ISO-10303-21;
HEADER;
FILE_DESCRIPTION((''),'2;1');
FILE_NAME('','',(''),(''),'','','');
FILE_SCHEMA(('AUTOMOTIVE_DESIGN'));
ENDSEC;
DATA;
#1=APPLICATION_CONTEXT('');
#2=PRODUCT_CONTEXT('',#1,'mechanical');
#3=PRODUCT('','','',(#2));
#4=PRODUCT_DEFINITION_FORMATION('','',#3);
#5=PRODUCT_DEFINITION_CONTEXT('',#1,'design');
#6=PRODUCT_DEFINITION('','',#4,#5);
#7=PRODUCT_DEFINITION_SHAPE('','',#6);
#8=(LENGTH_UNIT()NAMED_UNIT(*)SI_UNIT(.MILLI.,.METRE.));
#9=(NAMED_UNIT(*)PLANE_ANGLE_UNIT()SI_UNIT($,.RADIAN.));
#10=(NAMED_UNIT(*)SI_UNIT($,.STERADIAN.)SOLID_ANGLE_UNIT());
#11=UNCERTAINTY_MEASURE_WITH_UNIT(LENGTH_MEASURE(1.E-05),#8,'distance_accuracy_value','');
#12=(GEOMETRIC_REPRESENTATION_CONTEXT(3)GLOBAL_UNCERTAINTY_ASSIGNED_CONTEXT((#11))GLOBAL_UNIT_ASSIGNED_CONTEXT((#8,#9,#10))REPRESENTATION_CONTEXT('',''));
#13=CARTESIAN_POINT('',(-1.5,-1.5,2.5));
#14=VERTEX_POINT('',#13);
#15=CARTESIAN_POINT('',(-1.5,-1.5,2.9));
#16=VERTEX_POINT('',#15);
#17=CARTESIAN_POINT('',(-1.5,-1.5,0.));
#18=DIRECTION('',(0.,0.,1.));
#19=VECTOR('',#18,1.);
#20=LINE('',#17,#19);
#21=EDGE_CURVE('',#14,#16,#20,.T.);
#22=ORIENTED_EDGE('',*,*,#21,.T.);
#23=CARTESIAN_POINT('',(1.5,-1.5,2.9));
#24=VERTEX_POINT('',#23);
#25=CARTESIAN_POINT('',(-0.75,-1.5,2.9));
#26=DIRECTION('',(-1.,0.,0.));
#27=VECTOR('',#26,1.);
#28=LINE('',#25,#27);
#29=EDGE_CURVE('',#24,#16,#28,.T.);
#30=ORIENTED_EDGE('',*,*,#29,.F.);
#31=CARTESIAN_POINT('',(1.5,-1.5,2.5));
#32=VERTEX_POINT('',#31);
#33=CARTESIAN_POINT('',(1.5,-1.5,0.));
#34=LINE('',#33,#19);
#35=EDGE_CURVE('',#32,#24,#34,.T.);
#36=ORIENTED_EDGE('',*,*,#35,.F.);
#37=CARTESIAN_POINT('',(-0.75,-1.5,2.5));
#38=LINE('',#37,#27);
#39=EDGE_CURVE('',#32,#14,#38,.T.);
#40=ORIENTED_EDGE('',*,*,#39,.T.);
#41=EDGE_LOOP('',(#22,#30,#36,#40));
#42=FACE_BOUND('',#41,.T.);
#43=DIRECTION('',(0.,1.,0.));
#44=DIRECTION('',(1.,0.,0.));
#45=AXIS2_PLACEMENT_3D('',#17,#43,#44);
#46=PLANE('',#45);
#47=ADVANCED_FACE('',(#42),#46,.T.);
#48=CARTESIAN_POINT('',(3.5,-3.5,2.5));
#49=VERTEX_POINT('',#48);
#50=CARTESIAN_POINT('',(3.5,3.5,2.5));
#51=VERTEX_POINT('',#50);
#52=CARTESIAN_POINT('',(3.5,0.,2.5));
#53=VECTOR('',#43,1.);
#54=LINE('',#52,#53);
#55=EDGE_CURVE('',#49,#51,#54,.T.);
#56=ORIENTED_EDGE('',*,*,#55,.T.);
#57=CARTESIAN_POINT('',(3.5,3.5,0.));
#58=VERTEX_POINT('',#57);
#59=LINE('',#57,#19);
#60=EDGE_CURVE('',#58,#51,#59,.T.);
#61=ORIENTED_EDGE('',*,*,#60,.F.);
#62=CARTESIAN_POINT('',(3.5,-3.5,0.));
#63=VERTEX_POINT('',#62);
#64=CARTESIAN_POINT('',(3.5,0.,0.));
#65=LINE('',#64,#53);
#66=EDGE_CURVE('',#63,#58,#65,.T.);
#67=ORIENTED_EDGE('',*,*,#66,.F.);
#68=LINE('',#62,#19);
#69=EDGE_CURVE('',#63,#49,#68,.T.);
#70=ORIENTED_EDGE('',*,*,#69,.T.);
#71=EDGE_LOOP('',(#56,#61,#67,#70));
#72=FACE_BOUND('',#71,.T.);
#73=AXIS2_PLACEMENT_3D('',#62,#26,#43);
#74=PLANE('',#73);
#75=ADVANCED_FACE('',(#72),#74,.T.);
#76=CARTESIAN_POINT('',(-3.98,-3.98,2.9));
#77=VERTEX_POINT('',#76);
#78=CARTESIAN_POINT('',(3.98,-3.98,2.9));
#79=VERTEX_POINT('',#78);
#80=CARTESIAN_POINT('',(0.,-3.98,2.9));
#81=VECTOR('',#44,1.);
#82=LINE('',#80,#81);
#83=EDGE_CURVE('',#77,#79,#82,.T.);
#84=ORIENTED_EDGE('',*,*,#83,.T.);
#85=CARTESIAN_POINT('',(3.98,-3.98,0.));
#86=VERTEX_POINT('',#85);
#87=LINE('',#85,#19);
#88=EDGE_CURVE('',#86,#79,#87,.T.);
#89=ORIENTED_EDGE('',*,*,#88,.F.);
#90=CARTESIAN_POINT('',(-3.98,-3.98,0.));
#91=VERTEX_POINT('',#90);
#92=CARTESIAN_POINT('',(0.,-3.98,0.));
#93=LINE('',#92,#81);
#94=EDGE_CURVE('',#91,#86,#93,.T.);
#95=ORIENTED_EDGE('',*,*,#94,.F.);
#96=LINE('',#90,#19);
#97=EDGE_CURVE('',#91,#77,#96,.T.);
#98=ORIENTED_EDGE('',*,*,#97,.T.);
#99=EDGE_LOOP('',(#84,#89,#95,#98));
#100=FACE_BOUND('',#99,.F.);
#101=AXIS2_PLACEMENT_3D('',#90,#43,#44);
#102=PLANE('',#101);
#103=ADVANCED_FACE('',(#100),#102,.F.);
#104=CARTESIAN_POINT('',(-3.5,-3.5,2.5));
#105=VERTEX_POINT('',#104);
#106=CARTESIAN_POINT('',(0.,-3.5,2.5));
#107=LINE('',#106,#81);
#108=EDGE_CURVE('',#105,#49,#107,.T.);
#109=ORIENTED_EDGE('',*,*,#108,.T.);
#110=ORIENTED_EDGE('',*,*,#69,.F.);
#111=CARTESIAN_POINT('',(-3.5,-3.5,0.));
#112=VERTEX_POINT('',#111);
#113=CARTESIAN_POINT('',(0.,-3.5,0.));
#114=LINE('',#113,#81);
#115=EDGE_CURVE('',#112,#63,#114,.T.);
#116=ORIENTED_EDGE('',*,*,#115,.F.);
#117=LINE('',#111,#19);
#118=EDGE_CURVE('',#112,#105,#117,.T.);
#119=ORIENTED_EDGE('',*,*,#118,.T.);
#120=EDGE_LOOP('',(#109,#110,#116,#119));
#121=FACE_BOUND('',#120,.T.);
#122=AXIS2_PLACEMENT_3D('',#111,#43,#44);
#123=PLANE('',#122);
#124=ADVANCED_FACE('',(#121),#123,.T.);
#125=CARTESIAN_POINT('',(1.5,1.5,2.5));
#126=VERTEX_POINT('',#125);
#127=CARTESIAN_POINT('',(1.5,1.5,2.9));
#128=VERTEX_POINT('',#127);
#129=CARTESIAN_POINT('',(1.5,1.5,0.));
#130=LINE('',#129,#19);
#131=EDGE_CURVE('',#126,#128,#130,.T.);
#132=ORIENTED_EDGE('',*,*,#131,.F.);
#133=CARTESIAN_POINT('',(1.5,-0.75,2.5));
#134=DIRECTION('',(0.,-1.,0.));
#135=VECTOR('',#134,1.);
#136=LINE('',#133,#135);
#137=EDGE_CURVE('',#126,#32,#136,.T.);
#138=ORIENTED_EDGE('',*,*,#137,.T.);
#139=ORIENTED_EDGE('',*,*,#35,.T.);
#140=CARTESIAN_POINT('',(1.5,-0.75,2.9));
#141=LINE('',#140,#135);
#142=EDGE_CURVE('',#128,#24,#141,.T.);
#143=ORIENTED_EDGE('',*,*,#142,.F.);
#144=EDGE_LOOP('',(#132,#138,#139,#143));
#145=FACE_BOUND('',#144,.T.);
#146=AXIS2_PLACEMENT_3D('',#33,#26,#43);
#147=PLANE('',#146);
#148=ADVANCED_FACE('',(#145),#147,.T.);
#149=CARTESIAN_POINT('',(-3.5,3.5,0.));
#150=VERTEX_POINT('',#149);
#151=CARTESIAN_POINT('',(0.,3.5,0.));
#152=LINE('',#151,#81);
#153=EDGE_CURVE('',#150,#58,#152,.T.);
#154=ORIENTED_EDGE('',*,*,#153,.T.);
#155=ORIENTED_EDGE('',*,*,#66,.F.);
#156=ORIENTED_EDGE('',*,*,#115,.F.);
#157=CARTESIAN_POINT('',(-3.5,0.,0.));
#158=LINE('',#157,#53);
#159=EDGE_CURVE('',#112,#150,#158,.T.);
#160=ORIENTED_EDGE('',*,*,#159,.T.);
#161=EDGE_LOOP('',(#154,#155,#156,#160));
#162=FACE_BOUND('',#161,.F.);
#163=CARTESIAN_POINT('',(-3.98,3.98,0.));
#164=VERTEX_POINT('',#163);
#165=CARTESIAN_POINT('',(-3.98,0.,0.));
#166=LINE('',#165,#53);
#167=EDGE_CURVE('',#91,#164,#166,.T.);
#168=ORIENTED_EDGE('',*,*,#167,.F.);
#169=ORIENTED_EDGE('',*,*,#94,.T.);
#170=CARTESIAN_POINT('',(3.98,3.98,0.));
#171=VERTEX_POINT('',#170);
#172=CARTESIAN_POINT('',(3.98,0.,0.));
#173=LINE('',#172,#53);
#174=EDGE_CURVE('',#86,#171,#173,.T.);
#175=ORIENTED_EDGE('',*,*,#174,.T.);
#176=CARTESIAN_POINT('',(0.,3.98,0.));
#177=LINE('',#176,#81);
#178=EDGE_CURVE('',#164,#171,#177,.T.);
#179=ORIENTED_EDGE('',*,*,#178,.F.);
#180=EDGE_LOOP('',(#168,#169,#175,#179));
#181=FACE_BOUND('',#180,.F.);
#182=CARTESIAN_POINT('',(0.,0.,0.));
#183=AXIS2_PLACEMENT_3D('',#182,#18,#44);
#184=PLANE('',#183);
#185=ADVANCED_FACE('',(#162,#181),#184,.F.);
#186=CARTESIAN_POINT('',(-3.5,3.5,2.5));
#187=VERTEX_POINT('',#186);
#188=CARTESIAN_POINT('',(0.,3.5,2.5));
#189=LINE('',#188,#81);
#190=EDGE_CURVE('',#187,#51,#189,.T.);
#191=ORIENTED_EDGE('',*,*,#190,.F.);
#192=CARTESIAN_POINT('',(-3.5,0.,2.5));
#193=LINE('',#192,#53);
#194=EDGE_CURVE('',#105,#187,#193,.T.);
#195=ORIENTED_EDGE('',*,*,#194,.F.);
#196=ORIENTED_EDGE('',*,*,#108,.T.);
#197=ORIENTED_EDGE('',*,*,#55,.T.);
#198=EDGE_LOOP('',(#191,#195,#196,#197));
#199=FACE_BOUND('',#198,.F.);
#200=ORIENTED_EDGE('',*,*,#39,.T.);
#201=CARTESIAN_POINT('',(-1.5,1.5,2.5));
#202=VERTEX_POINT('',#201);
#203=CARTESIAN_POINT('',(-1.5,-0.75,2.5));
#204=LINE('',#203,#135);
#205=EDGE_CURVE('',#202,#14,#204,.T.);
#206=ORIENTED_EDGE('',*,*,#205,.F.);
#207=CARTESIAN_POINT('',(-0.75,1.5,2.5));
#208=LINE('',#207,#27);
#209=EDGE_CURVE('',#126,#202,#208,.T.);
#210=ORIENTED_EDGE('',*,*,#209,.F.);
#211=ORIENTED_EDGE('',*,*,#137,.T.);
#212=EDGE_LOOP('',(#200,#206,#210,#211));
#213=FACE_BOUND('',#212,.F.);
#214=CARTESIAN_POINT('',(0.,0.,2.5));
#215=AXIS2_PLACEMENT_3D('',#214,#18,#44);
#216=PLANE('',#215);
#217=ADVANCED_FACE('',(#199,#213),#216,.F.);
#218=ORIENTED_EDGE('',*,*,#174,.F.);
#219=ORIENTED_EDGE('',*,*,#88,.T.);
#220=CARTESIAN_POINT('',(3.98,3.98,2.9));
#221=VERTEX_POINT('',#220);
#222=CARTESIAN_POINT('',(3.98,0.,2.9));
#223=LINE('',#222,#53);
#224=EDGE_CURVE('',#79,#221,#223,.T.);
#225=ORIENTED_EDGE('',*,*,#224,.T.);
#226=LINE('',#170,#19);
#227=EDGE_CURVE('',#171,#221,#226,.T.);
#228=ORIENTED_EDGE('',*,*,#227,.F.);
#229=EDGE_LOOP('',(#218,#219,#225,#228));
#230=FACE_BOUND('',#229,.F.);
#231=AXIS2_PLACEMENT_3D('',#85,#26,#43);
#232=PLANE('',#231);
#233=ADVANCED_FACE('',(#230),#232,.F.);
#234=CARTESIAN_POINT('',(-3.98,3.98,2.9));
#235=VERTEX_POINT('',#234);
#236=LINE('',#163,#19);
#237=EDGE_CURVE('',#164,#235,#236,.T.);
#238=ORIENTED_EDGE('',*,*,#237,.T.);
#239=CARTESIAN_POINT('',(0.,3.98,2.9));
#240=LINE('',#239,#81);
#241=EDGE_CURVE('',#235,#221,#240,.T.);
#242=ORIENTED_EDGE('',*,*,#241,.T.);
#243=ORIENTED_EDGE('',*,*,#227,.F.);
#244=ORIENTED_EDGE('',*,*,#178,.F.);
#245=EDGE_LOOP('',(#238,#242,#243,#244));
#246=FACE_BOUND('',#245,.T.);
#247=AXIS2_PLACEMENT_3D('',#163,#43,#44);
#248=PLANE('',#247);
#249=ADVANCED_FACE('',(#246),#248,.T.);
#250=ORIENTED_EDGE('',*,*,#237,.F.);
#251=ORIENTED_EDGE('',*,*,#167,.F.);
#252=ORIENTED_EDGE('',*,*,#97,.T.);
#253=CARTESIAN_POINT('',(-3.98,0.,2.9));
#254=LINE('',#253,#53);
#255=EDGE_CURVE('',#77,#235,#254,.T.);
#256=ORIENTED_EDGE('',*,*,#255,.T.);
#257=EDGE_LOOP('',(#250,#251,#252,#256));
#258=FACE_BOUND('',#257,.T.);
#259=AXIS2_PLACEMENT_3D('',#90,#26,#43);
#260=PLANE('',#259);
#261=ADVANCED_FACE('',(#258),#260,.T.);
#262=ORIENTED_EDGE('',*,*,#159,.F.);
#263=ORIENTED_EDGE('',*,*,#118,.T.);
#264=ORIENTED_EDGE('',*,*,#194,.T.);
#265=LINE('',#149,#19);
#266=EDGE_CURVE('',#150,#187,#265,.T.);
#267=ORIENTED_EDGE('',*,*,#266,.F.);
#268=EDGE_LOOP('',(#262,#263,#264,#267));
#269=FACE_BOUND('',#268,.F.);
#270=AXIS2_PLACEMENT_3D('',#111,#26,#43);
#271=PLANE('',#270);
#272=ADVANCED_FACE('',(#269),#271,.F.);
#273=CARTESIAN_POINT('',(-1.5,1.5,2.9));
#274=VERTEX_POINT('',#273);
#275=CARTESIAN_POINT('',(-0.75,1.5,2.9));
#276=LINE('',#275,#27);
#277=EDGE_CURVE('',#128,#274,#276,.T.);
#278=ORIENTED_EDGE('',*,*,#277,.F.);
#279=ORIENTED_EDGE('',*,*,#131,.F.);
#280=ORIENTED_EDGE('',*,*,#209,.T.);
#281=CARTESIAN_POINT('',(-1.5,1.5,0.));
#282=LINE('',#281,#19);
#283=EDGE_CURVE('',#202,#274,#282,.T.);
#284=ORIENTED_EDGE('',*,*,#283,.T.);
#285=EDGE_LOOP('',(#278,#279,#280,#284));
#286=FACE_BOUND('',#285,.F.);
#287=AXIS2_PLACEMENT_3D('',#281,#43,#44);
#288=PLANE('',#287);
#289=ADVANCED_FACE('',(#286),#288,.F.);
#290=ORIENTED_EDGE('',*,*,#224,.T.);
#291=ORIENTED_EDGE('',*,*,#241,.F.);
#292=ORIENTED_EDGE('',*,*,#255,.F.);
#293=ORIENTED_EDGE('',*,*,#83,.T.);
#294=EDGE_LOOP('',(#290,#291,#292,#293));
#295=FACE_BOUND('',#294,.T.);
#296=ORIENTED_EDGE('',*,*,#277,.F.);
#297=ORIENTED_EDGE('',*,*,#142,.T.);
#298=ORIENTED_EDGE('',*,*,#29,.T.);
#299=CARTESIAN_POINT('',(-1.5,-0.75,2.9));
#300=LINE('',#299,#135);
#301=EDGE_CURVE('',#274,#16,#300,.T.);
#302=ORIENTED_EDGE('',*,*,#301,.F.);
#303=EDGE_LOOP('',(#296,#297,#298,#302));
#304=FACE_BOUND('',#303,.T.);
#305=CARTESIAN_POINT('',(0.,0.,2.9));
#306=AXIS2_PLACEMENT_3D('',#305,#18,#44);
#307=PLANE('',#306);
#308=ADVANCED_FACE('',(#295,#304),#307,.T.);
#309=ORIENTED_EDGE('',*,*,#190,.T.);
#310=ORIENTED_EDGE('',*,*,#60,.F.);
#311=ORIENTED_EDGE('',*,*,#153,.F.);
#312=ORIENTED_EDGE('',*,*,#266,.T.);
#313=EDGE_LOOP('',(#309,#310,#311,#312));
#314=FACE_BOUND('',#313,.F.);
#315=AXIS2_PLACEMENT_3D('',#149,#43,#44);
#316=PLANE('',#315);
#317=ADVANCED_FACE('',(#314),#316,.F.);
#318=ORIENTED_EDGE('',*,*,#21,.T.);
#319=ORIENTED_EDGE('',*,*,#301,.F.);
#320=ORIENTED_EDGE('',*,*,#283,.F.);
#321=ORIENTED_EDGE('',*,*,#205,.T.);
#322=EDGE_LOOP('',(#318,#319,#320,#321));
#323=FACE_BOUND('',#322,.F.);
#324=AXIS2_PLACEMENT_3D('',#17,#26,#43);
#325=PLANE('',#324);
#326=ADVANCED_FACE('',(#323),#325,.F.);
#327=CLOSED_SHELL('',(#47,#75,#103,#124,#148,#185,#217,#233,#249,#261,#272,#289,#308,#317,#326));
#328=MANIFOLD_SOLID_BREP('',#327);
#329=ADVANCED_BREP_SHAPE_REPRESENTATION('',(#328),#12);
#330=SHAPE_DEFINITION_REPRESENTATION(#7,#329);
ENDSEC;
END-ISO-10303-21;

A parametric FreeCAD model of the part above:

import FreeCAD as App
import Part
import Sketcher
from FreeCAD import Vector


def add_polygon(sketch, points):
    """Adds a closed chain of lines whose ends are joined by coincident constraints."""
    first, n = sketch.GeometryCount, len(points)
    for a, b in zip(points, points[1:] + points[:1]):
        sketch.addGeometry(Part.LineSegment(App.Vector(*a, 0), App.Vector(*b, 0)), False)
    for i in range(n):
        sketch.addConstraint(Sketcher.Constraint("Coincident", first + i, 2, first + (i + 1) % n, 1))

doc = App.newDocument("Part")
params = doc.addObject("Spreadsheet::Sheet", "Params")
for row, (alias, value) in enumerate([
    ("sketch1_width", "3 mm"),
    ("pad1_length", "4 mm"),
    ("sketch2_width", "7 mm"),
    ("pad2_length", "2.5 mm"),
    ("sketch3_width", "7.96 mm"),
    ("pad3_length", "2.9 mm"),
], start=1):
    params.set(f"A{row}", alias)
    params.set(f"B{row}", "=" + value)
    params.setAlias(f"B{row}", alias)

body = doc.addObject("PartDesign::Body", "Body")

# Sketch on XY plane
sketch1 = body.newObject("Sketcher::SketchObject", "Sketch")
sketch1.AttachmentSupport = (doc.getObject("XY_Plane"), [""])
sketch1.MapMode = "FlatFace"
add_polygon(sketch1, [(-1.5, 1.5), (-1.5, -1.5), (1.5, -1.5), (1.5, 1.5)])  # lines 0-3
sketch1.addConstraint([
    Sketcher.Constraint("Vertical", 0),
    Sketcher.Constraint("Horizontal", 1),
    Sketcher.Constraint("Vertical", 2),
    Sketcher.Constraint("Horizontal", 3),
    Sketcher.Constraint("Symmetric", 0, 2, 2, 2, -1, 1),
    Sketcher.Constraint("Equal", 3, 0),
    Sketcher.Constraint("DistanceX", 1, 1, 1, 2, 3.0),
])
sketch1.setExpression("Constraints[10]", "Params.sketch1_width")
pad1 = body.newObject("PartDesign::Pad", "Pad")
pad1.Profile = sketch1
pad1.setExpression("Length", "Params.pad1_length")
body2 = doc.addObject("PartDesign::Body", "Body001")

# Sketch on XY plane
sketch2 = body2.newObject("Sketcher::SketchObject", "Sketch001")
sketch2.AttachmentSupport = (doc.getObject("XY_Plane001"), [""])
sketch2.MapMode = "FlatFace"
add_polygon(sketch2, [(-4, 4), (-4, -4), (4, -4), (4, 4)])  # lines 0-3
sketch2.addConstraint([
    Sketcher.Constraint("Vertical", 0),
    Sketcher.Constraint("Horizontal", 1),
    Sketcher.Constraint("Vertical", 2),
    Sketcher.Constraint("Horizontal", 3),
    Sketcher.Constraint("Symmetric", 0, 2, 2, 2, -1, 1),
    Sketcher.Constraint("Equal", 3, 0),
    Sketcher.Constraint("DistanceX", 1, 1, 1, 2, 7.0),
])
sketch2.setExpression("Constraints[10]", "Params.sketch2_width")
pad2 = body2.newObject("PartDesign::Pad", "Pad001")
pad2.Profile = sketch2
pad2.setExpression("Length", "Params.pad2_length")
doc.recompute()

boolean = body2.newObject("PartDesign::Boolean", "Boolean")
boolean.Type = "Fuse"
boolean.addObjects([body])
body3 = doc.addObject("PartDesign::Body", "Body002")

# Sketch on XY plane
sketch3 = body3.newObject("Sketcher::SketchObject", "Sketch002")
sketch3.AttachmentSupport = (doc.getObject("XY_Plane002"), [""])
sketch3.MapMode = "FlatFace"
add_polygon(sketch3, [(-4, 4), (-4, -4), (4, -4), (4, 4)])  # lines 0-3
sketch3.addConstraint([
    Sketcher.Constraint("Vertical", 0),
    Sketcher.Constraint("Horizontal", 1),
    Sketcher.Constraint("Vertical", 2),
    Sketcher.Constraint("Horizontal", 3),
    Sketcher.Constraint("Symmetric", 0, 2, 2, 2, -1, 1),
    Sketcher.Constraint("Equal", 3, 0),
    Sketcher.Constraint("DistanceX", 1, 1, 1, 2, 7.96),
])
sketch3.setExpression("Constraints[10]", "Params.sketch3_width")
pad3 = body3.newObject("PartDesign::Pad", "Pad002")
pad3.Profile = sketch3
pad3.setExpression("Length", "Params.pad3_length")
doc.recompute()

boolean2 = body3.newObject("PartDesign::Boolean", "Boolean001")
boolean2.Type = "Cut"
boolean2.addObjects([body2])

doc.recompute()
